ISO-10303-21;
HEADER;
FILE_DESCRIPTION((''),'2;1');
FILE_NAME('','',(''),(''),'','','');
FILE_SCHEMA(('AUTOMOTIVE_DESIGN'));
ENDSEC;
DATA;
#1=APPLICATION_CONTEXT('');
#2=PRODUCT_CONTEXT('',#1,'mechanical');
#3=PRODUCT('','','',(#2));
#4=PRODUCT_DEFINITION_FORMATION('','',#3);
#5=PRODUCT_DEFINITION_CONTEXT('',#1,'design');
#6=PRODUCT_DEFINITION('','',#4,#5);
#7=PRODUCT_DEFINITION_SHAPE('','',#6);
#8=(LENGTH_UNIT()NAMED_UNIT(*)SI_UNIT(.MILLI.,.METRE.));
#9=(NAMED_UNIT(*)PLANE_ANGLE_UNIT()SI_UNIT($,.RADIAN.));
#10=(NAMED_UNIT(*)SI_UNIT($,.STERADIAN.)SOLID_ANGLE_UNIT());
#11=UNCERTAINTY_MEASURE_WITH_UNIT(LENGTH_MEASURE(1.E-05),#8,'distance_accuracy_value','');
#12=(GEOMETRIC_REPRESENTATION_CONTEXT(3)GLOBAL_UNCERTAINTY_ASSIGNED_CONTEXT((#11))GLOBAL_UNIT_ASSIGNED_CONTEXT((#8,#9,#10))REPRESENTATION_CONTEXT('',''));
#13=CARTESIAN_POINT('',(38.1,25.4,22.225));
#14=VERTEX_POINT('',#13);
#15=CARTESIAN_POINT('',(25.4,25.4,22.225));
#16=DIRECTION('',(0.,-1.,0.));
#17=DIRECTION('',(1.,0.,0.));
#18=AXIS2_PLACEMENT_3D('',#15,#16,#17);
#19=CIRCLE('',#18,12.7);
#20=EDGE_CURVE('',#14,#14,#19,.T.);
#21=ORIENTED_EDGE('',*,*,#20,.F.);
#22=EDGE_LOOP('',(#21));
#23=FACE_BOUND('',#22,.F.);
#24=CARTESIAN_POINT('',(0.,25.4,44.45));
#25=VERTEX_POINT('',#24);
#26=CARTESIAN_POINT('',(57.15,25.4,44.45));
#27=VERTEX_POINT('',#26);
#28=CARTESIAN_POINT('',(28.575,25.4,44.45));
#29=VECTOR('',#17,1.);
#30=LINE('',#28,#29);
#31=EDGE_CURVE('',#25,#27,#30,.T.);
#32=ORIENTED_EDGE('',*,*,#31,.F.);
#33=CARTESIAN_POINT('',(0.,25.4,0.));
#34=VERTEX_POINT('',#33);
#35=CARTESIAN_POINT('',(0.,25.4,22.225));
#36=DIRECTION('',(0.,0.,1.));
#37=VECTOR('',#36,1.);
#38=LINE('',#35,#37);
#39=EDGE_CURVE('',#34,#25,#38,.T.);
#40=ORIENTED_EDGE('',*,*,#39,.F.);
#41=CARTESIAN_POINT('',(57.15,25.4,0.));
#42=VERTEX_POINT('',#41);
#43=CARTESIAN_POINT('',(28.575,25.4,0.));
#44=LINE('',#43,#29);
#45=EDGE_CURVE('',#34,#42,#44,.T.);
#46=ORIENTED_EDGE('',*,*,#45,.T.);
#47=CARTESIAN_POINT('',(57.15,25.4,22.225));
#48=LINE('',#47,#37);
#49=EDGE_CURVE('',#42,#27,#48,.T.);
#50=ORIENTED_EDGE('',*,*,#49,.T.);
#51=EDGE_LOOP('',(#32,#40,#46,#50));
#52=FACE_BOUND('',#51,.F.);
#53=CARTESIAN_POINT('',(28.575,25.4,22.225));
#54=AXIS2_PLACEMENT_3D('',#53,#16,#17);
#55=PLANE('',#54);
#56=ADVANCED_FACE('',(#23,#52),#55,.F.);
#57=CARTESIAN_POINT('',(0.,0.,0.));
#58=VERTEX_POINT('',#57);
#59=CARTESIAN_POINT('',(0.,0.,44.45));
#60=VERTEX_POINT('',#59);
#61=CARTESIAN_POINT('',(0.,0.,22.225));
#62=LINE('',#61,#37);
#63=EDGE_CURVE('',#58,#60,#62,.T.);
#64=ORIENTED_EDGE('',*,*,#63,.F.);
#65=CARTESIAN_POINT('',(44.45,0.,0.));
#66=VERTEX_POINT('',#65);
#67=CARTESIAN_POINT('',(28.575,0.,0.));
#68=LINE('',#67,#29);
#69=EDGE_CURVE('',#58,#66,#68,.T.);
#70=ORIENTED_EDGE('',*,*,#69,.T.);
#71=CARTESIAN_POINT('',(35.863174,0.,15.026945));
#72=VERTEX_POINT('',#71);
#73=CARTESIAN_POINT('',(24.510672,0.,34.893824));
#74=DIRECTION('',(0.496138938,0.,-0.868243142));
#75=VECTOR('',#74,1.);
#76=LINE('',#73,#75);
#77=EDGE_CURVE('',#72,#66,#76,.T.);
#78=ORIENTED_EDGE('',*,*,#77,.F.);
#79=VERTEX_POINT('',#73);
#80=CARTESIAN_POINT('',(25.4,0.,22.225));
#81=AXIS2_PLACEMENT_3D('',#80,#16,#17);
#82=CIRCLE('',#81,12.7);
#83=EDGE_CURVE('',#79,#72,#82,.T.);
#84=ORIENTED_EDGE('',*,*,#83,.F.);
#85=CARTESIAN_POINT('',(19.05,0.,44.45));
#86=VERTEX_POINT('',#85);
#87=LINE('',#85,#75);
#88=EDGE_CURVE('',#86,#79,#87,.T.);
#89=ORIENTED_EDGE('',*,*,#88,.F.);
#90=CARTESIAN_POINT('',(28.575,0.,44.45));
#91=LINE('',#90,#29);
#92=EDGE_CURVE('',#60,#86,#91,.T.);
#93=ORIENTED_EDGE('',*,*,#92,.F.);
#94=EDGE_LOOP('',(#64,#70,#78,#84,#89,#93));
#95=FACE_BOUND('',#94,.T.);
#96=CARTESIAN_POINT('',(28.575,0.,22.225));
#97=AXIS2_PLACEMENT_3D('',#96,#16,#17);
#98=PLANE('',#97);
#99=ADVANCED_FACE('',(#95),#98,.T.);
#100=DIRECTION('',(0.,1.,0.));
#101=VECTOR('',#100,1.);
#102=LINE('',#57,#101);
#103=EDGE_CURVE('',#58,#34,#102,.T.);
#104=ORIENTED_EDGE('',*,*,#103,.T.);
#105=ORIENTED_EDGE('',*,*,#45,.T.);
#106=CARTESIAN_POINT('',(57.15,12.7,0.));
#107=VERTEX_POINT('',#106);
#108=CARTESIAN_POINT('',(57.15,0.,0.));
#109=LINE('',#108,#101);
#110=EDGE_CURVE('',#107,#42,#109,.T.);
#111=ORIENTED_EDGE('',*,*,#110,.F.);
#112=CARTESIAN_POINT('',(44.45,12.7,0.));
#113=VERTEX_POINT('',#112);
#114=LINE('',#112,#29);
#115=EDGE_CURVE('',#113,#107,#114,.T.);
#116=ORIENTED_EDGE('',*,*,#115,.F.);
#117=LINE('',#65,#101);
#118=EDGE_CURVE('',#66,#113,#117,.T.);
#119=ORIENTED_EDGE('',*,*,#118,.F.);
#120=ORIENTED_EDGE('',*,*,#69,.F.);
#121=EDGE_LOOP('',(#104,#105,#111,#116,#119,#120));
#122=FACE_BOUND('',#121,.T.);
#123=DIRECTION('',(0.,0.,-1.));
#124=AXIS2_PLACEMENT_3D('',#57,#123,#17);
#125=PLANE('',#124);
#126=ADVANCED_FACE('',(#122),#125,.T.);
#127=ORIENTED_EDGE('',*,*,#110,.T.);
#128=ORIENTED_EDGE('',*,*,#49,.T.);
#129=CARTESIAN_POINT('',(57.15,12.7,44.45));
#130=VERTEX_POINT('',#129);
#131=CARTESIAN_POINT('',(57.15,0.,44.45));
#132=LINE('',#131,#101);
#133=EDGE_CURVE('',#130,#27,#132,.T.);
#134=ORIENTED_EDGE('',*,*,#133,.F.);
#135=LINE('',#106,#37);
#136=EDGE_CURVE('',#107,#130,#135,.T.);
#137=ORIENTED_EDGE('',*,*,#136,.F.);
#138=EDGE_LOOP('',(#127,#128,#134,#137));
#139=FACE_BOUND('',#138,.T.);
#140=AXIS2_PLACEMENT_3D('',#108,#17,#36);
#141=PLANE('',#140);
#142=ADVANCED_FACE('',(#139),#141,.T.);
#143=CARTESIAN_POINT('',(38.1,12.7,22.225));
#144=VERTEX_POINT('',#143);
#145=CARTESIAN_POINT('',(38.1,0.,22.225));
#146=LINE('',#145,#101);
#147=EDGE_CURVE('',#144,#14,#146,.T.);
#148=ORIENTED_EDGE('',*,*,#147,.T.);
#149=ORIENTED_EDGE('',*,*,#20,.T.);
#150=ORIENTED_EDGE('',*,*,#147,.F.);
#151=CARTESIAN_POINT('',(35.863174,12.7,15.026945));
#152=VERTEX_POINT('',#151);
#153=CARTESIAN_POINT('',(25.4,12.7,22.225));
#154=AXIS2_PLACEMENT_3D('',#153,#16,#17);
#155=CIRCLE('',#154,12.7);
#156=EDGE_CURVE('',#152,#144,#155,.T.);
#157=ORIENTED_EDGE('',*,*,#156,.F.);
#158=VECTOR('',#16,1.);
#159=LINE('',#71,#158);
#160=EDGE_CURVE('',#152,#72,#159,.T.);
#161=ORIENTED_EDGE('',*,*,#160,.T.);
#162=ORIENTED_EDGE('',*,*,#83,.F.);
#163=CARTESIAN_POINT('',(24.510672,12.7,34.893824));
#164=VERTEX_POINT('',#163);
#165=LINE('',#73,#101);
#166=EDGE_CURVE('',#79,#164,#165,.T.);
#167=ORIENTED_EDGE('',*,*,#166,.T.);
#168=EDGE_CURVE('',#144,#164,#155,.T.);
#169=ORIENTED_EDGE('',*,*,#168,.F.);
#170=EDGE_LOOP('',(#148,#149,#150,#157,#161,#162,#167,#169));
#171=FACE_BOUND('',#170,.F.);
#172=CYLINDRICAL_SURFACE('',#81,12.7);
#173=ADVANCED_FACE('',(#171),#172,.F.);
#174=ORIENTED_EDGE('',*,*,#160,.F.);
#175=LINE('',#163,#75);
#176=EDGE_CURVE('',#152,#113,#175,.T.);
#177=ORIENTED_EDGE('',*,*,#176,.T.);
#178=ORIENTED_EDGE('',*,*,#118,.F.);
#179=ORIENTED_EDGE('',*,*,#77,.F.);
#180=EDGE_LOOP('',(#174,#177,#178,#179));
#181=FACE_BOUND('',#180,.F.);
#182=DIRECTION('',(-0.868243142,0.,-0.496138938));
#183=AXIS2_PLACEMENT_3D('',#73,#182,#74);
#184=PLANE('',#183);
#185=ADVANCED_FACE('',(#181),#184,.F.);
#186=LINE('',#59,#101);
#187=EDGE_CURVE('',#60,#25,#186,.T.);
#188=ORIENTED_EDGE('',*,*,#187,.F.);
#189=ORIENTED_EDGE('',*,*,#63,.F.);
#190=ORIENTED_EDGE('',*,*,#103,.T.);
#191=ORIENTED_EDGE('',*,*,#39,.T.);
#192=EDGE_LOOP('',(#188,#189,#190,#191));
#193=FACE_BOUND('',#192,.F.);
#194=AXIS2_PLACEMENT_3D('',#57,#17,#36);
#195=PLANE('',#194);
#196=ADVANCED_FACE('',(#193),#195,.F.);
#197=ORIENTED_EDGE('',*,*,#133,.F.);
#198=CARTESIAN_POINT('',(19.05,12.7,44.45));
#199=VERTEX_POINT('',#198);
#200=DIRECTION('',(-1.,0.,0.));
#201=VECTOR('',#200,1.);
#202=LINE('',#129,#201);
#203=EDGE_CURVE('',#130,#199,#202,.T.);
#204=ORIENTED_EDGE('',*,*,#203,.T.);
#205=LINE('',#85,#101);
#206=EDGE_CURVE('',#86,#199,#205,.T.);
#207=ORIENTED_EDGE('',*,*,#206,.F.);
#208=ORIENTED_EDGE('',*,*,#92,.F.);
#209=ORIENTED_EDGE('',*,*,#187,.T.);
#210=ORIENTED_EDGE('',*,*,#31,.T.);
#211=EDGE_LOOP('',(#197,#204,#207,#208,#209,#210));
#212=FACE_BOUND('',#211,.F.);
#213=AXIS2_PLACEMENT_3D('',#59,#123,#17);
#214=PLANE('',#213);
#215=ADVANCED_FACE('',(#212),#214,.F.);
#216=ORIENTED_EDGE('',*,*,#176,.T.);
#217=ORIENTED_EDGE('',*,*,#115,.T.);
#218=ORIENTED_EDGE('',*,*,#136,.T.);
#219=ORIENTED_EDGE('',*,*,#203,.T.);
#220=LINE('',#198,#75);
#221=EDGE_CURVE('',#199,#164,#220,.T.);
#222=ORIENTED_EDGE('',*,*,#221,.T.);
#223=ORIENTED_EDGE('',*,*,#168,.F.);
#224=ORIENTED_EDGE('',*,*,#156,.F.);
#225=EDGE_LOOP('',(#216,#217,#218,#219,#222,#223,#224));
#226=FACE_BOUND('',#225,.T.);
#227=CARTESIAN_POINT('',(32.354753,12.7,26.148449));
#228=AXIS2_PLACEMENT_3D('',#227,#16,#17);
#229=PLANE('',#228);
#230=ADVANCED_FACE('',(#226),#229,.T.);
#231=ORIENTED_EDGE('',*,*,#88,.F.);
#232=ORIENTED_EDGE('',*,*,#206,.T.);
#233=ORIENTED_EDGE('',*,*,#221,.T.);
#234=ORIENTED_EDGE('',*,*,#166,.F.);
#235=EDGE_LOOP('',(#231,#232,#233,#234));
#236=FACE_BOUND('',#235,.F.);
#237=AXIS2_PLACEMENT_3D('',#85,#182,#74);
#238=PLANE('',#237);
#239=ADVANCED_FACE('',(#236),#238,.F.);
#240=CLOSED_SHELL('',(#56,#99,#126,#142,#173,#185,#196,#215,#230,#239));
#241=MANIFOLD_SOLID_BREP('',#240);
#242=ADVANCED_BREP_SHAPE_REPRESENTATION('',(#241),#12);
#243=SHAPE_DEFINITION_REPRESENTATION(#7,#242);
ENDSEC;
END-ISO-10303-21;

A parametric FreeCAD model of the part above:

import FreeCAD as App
import Part
import Sketcher
Q = App.Units.Quantity

doc = App.newDocument("Part")
body = doc.addObject("PartDesign::Body", "Body")

# Sketch on XZ plane
sketch1 = body.newObject("Sketcher::SketchObject", "Sketch")
sketch1.AttachmentSupport = (doc.getObject("XZ_Plane"), [""])
sketch1.MapMode = "FlatFace"
sketch1.addGeometry(Part.LineSegment(App.Vector(0, 44, 0), App.Vector(0, 0, 0)), False)
sketch1.addGeometry(Part.LineSegment(App.Vector(0, 0, 0), App.Vector(57, 0, 0)), False)
sketch1.addGeometry(Part.LineSegment(App.Vector(57, 0, 0), App.Vector(57, 44, 0)), False)
sketch1.addGeometry(Part.LineSegment(App.Vector(57, 44, 0), App.Vector(0, 44, 0)), False)
sketch1.addConstraint(Sketcher.Constraint("Coincident", 0, 2, 1, 1))
sketch1.addConstraint(Sketcher.Constraint("Coincident", 1, 2, 2, 1))
sketch1.addConstraint(Sketcher.Constraint("Coincident", 2, 2, 3, 1))
sketch1.addConstraint(Sketcher.Constraint("Coincident", 3, 2, 0, 1))
sketch1.addConstraint(Sketcher.Constraint("Vertical", 0))
sketch1.addConstraint(Sketcher.Constraint("Horizontal", 1))
sketch1.addConstraint(Sketcher.Constraint("Vertical", 2))
sketch1.addConstraint(Sketcher.Constraint("Horizontal", 3))
sketch1.addConstraint(Sketcher.Constraint("Coincident", 0, 2, -1, 1))
sketch1.addConstraint(Sketcher.Constraint("DistanceX", 1, 1, 1, 2, Q("2.25 in")))
sketch1.addConstraint(Sketcher.Constraint("DistanceY", 0, 2, 0, 1, Q("1.75 in")))
pad1 = body.newObject("PartDesign::Pad", "Pad")
pad1.Profile = sketch1
pad1.Length = Q("1 in")
pad1.Reversed = True

# Sketch on XZ plane
sketch2 = body.newObject("Sketcher::SketchObject", "Sketch001")
sketch2.AttachmentSupport = (doc.getObject("XZ_Plane"), [""])
sketch2.MapMode = "FlatFace"
sketch2.addGeometry(Part.Circle(App.Vector(25, 22, 0), App.Vector(0, 0, 1), 13), False)
sketch2.addConstraint(Sketcher.Constraint("Diameter", 0, Q("1 in")))
sketch2.addConstraint(Sketcher.Constraint("DistanceX", -1, 1, 0, 3, Q("1 in")))
sketch2.addConstraint(Sketcher.Constraint("DistanceY", -1, 1, 0, 3, Q("0.875 in")))
pocket1 = body.newObject("PartDesign::Pocket", "Pocket")
pocket1.Profile = sketch2
pocket1.Length = Q("1 in")

# Sketch on XZ plane
sketch3 = body.newObject("Sketcher::SketchObject", "Sketch002")
sketch3.AttachmentSupport = (doc.getObject("XZ_Plane"), [""])
sketch3.MapMode = "FlatFace"
sketch3.addGeometry(Part.LineSegment(App.Vector(25, 35, 0), App.Vector(44, 0, 0)), False)
sketch3.addGeometry(Part.LineSegment(App.Vector(44, 0, 0), App.Vector(57, 0, 0)), False)
sketch3.addGeometry(Part.LineSegment(App.Vector(57, 0, 0), App.Vector(57, 44, 0)), False)
sketch3.addGeometry(Part.LineSegment(App.Vector(57, 44, 0), App.Vector(19, 44, 0)), False)
sketch3.addGeometry(Part.LineSegment(App.Vector(19, 44, 0), App.Vector(25, 35, 0)), False)
sketch3.addConstraint(Sketcher.Constraint("Coincident", 0, 2, 1, 1))
sketch3.addConstraint(Sketcher.Constraint("Coincident", 1, 2, 2, 1))
sketch3.addConstraint(Sketcher.Constraint("Coincident", 2, 2, 3, 1))
sketch3.addConstraint(Sketcher.Constraint("Coincident", 3, 2, 4, 1))
sketch3.addConstraint(Sketcher.Constraint("Coincident", 4, 2, 0, 1))
sketch3.addConstraint(Sketcher.Constraint("Horizontal", 1))
sketch3.addConstraint(Sketcher.Constraint("Vertical", 2))
sketch3.addConstraint(Sketcher.Constraint("Horizontal", 3))
sketch3.addConstraint(Sketcher.Constraint("PointOnObject", 0, 2, -1))
sketch3.addConstraint(Sketcher.Constraint("Parallel", 0, 4))
sketch3.addConstraint(Sketcher.Constraint("DistanceX", 1, 1, 1, 2, Q("0.5 in")))
sketch3.addConstraint(Sketcher.Constraint("DistanceX", 3, 2, 3, 1, Q("1.5 in")))
sketch3.addConstraint(Sketcher.Constraint("DistanceY", 2, 1, 2, 2, Q("1.75 in")))
sketch3.addConstraint(Sketcher.Constraint("DistanceX", -1, 1, 0, 2, Q("1.75 in")))
sketch3.addConstraint(Sketcher.Constraint("Distance", 0, Q("40.189 mm")))
pocket2 = body.newObject("PartDesign::Pocket", "Pocket001")
pocket2.Profile = sketch3
pocket2.Length = Q("0.5 in")

doc.recompute()
